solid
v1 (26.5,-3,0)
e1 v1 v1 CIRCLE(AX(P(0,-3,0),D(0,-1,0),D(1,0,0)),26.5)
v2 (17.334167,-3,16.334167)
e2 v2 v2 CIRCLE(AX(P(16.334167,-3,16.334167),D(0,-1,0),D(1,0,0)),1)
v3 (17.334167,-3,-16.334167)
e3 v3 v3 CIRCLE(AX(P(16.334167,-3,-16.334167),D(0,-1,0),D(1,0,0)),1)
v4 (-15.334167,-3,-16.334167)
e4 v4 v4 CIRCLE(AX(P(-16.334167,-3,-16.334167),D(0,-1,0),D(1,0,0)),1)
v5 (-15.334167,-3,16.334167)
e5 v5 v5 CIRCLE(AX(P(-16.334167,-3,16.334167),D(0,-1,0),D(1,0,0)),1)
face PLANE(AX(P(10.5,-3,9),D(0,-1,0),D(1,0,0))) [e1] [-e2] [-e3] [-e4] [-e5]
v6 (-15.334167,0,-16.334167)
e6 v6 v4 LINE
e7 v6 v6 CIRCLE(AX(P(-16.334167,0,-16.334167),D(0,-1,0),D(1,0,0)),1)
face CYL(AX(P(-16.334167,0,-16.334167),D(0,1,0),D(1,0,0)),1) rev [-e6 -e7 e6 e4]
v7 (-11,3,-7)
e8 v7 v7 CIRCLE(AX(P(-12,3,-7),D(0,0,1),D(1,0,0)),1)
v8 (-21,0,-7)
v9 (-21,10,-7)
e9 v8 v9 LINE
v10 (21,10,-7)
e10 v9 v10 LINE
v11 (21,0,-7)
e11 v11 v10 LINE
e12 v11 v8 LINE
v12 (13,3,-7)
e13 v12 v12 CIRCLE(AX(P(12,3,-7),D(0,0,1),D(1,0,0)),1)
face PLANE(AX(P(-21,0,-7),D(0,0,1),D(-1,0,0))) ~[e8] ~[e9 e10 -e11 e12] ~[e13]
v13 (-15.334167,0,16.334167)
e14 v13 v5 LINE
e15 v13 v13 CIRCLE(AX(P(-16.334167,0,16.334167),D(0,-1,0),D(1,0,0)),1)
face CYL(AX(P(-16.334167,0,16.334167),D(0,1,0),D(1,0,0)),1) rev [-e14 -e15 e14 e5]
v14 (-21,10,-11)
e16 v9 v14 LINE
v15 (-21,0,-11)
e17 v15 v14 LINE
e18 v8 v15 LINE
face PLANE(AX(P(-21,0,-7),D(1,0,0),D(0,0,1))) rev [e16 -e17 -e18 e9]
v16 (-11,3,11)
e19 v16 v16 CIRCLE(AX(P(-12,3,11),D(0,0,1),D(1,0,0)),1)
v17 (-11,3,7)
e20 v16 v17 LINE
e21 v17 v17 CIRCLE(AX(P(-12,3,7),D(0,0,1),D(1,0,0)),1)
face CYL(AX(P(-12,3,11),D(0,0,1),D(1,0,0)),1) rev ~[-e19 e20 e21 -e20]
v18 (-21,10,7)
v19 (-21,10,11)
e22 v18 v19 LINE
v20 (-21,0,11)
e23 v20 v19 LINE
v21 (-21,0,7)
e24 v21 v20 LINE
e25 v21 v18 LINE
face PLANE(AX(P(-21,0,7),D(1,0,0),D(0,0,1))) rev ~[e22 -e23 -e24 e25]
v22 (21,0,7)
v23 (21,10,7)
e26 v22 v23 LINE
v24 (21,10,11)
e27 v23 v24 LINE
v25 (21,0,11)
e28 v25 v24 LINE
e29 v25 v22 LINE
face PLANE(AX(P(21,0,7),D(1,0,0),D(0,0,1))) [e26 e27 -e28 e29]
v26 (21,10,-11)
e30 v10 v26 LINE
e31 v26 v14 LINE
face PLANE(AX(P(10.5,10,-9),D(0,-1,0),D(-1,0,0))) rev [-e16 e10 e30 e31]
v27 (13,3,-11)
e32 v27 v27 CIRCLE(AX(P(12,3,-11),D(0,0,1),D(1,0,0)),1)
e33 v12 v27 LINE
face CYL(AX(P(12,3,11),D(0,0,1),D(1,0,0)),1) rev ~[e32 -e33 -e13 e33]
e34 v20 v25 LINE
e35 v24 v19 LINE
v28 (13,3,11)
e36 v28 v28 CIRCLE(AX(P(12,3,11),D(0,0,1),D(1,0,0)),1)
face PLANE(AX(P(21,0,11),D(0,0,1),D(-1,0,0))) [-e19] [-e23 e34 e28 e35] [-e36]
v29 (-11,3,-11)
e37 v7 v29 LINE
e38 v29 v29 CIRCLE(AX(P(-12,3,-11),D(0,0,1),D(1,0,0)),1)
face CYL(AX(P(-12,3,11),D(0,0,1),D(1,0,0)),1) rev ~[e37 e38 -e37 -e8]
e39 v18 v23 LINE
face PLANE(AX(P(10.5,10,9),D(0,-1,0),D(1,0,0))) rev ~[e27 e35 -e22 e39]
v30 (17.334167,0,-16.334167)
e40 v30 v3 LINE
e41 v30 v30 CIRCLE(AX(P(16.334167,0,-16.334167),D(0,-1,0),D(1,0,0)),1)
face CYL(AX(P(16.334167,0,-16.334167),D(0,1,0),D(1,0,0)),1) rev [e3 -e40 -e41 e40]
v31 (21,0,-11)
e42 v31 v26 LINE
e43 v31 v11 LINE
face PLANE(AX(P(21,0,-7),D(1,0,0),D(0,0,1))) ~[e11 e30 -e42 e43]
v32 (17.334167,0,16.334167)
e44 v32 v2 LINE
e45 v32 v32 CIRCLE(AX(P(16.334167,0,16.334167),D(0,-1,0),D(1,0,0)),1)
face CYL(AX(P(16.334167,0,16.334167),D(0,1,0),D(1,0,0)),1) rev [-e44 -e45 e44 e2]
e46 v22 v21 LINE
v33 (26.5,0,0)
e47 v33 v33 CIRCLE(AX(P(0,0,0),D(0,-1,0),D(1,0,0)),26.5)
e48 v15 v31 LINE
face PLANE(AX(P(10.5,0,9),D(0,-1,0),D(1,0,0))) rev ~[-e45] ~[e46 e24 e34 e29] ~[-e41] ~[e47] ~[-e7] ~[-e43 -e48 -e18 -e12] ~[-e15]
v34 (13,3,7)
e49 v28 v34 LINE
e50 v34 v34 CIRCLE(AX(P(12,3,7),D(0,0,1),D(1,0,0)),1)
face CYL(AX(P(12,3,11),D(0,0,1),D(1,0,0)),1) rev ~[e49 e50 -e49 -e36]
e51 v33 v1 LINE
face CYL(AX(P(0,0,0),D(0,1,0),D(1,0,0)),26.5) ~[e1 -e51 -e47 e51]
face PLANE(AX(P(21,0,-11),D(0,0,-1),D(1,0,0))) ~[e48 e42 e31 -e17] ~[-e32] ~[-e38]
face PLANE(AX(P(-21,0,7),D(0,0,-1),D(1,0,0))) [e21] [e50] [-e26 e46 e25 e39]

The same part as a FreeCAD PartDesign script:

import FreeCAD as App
import Part
import Sketcher
from FreeCAD import Vector

doc = App.newDocument("Part")
body = doc.addObject("PartDesign::Body", "Body")
body.AllowCompound = True

# Sketch on XZ plane
sketch1 = doc.addObject("Sketcher::SketchObject", "Sketch")
body.addObject(sketch1)
sketch1.AttachmentSupport = (doc.XZ_Plane, [""])
sketch1.MapMode = "FlatFace"
sketch1.addGeometry([
    Part.Circle(Vector(0, 0, 0), Vector(0, 0, 1), 26.5),  # 0
    Part.Circle(Vector(-16.3, -16.3, 0), Vector(0, 0, 1), 1),  # 1
    Part.Circle(Vector(16.3, -16.3, 0), Vector(0, 0, 1), 1),  # 2
    Part.Circle(Vector(-16.3, 16.3, 0), Vector(0, 0, 1), 1),  # 3
    Part.LineSegment(Vector(21, 11, 0), Vector(21, 7, 0)),  # 4
    Part.LineSegment(Vector(21, 7, 0), Vector(-21, 7, 0)),  # 5
    Part.LineSegment(Vector(-21, 7, 0), Vector(-21, 11, 0)),  # 6
    Part.LineSegment(Vector(-21, 11, 0), Vector(21, 11, 0)),  # 7
    Part.Circle(Vector(16.3, 16.3, 0), Vector(0, 0, 1), 1),  # 8
], False)
sketch1.addConstraint([
    Sketcher.Constraint("Coincident", 4, 2, 5, 1),
    Sketcher.Constraint("Coincident", 5, 2, 6, 1),
    Sketcher.Constraint("Coincident", 6, 2, 7, 1),
    Sketcher.Constraint("Coincident", 7, 2, 4, 1),
    Sketcher.Constraint("Vertical", 4),
    Sketcher.Constraint("Horizontal", 5),
    Sketcher.Constraint("Vertical", 6),
    Sketcher.Constraint("Horizontal", 7),
    Sketcher.Constraint("Coincident", 0, 3, -1, 1),
    Sketcher.Constraint("Equal", 1, 2),
    Sketcher.Constraint("Equal", 2, 3),
    Sketcher.Constraint("Equal", 3, 8),
    Sketcher.Constraint("Symmetric", 2, 3, 3, 3, -1, 1),
    Sketcher.Constraint("Symmetric", 1, 3, 8, 3, -1, 1),
    Sketcher.Constraint("Symmetric", 1, 3, 2, 3, -2),
    Sketcher.Constraint("Diameter", 0, 53.0),
    Sketcher.Constraint("Diameter", 1, 2.0),
    Sketcher.Constraint("DistanceX", 5, 2, 5, 1, 42.0),
    Sketcher.Constraint("DistanceY", 4, 2, 4, 1, 4.0),
    Sketcher.Constraint("DistanceX", -1, 1, 4, 2, 21.0),
    Sketcher.Constraint("DistanceY", -1, 1, 4, 2, 7.0),
    Sketcher.Constraint("DistanceX", 1, 3, -1, 1, 16.334167),
    Sketcher.Constraint("DistanceY", 1, 3, -1, 1, 16.334167),
])
pad1 = doc.addObject("PartDesign::Pad", "Pad")
body.addObject(pad1)
pad1.Profile = sketch1
pad1.Length = 3

# Sketch on XZ plane
sketch2 = doc.addObject("Sketcher::SketchObject", "Sketch001")
body.addObject(sketch2)
sketch2.AttachmentSupport = (doc.XZ_Plane, [""])
sketch2.MapMode = "FlatFace"
sketch2.addGeometry([
    Part.LineSegment(Vector(21, 7, 0), Vector(21, 11, 0)),
    Part.LineSegment(Vector(21, 11, 0), Vector(-21, 11, 0)),
    Part.LineSegment(Vector(-21, 11, 0), Vector(-21, 7, 0)),
    Part.LineSegment(Vector(-21, 7, 0), Vector(21, 7, 0)),
], False)
sketch2.addConstraint([
    Sketcher.Constraint("Coincident", 0, 2, 1, 1),
    Sketcher.Constraint("Coincident", 1, 2, 2, 1),
    Sketcher.Constraint("Coincident", 2, 2, 3, 1),
    Sketcher.Constraint("Coincident", 3, 2, 0, 1),
    Sketcher.Constraint("Vertical", 0),
    Sketcher.Constraint("Horizontal", 1),
    Sketcher.Constraint("Vertical", 2),
    Sketcher.Constraint("Horizontal", 3),
    Sketcher.Constraint("DistanceX", 1, 2, 1, 1, 42.0),
    Sketcher.Constraint("DistanceY", 0, 1, 0, 2, 4.0),
    Sketcher.Constraint("DistanceX", -1, 1, 0, 2, 21.0),
    Sketcher.Constraint("DistanceY", -1, 1, 0, 2, 11.0),
])
pad2 = doc.addObject("PartDesign::Pad", "Pad001")
body.addObject(pad2)
pad2.Profile = sketch2
pad2.Length = 10
pad2.Reversed = True
body2 = doc.addObject("PartDesign::Body", "Body001")
body2.AllowCompound = True
doc.recompute()

body2.BaseFeature = body
doc.recompute()

mirroring = doc.addObject("Part::Mirroring", "Mirroring")
mirroring.Source = body
mirroring.Base = Vector(0, 0, 0)
mirroring.Normal = Vector(0, 0, 1)
body3 = doc.addObject("PartDesign::Body", "Body002")
body3.BaseFeature = mirroring
boolean = doc.addObject("PartDesign::Boolean", "Boolean")
body2.addObject(boolean)
boolean.Type = "Fuse"
boolean.addObjects([body3])
doc.recompute()

# Sketch on XY plane
sketch3 = doc.addObject("Sketcher::SketchObject", "Sketch002")
body2.addObject(sketch3)
sketch3.AttachmentSupport = (doc.getObject("XY_Plane001"), [""])
sketch3.MapMode = "FlatFace"
sketch3.AttachmentOffset = App.Placement(Vector(0, 0, 11), App.Rotation())
sketch3.addGeometry([
    Part.Circle(Vector(-12, 3, 0), Vector(0, 0, 1), 1),
    Part.Circle(Vector(12, 3, 0), Vector(0, 0, 1), 1),
], False)
sketch3.addConstraint([
    Sketcher.Constraint("Equal", 0, 1),
    Sketcher.Constraint("Symmetric", 0, 3, 1, 3, -2),
    Sketcher.Constraint("Diameter", 0, 2.0),
    Sketcher.Constraint("DistanceX", 0, 3, -1, 1, 12.0),
    Sketcher.Constraint("DistanceY", -1, 1, 0, 3, 3.0),
])
pocket1 = doc.addObject("PartDesign::Pocket", "Pocket")
body2.addObject(pocket1)
pocket1.Profile = sketch3
pocket1.Type = "ThroughAll"
mirroring.Visibility = False

doc.recompute()
